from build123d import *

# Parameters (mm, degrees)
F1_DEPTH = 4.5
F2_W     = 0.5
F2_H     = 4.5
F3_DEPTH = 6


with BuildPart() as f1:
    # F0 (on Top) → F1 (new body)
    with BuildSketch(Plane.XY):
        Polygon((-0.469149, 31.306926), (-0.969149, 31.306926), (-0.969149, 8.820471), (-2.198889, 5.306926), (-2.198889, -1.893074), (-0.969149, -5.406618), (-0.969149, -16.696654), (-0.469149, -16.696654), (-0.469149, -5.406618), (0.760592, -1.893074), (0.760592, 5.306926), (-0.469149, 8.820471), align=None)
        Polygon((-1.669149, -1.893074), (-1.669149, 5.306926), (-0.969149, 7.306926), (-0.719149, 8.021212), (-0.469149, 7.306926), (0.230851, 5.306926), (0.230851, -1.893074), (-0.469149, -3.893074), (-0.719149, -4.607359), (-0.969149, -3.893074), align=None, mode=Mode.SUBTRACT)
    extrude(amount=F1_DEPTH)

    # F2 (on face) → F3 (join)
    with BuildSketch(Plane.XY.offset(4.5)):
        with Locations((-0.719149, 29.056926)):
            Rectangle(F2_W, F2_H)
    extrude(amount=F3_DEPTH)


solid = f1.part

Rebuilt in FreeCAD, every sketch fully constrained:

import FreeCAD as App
import Part
import Sketcher

V = App.Vector

doc = App.newDocument("Part")
params = doc.addObject("Spreadsheet::Sheet", "Params")
for row, (alias, value) in enumerate([
    ("sketch1_width", "0.5 mm"),
    ("sketch1_height", "7.2 mm"),
    ("pad1_length", "4.5 mm"),
    ("sketch2_width", "0.5 mm"),
    ("sketch2_height", "4.5 mm"),
    ("pad2_length", "6 mm"),
], start=1):
    params.set(f"A{row}", alias)
    params.set(f"B{row}", "=" + value)
    params.setAlias(f"B{row}", alias)

body = doc.addObject("PartDesign::Body", "Body")

# Sketch on XY plane
sketch1 = doc.addObject("Sketcher::SketchObject", "Sketch")
body.addObject(sketch1)
sketch1.AttachmentSupport = (doc.XY_Plane, [""])
sketch1.MapMode = "FlatFace"
sketch1.addGeometry([
    Part.LineSegment(V(-0.5, 31.3, 0), V(-1, 31.3, 0)),  # 0
    Part.LineSegment(V(-1, 31.3, 0), V(-1, 8.8, 0)),  # 1
    Part.LineSegment(V(-1, 8.8, 0), V(-2.2, 5.3, 0)),  # 2
    Part.LineSegment(V(-2.2, 5.3, 0), V(-2.2, -1.9, 0)),  # 3
    Part.LineSegment(V(-2.2, -1.9, 0), V(-1, -5.4, 0)),  # 4
    Part.LineSegment(V(-1, -5.4, 0), V(-1, -16.7, 0)),  # 5
    Part.LineSegment(V(-1, -16.7, 0), V(-0.5, -16.7, 0)),  # 6
    Part.LineSegment(V(-0.5, -16.7, 0), V(-0.5, -5.4, 0)),  # 7
    Part.LineSegment(V(-0.5, -5.4, 0), V(0.8, -1.9, 0)),  # 8
    Part.LineSegment(V(0.8, -1.9, 0), V(0.8, 5.3, 0)),  # 9
    Part.LineSegment(V(0.8, 5.3, 0), V(-0.5, 8.8, 0)),  # 10
    Part.LineSegment(V(-0.5, 8.8, 0), V(-0.5, 31.3, 0)),  # 11
    Part.LineSegment(V(-1, -3.9, 0), V(-1.7, -1.9, 0)),  # 12
    Part.LineSegment(V(-1.7, -1.9, 0), V(-1.7, 5.3, 0)),  # 13
    Part.LineSegment(V(-1.7, 5.3, 0), V(-1, 7.3, 0)),  # 14
    Part.LineSegment(V(-1, 7.3, 0), V(-0.7, 8, 0)),  # 15
    Part.LineSegment(V(-0.7, 8, 0), V(-0.5, 7.3, 0)),  # 16
    Part.LineSegment(V(-0.5, 7.3, 0), V(0.2, 5.3, 0)),  # 17
    Part.LineSegment(V(0.2, 5.3, 0), V(0.2, -1.9, 0)),  # 18
    Part.LineSegment(V(0.2, -1.9, 0), V(-0.5, -3.9, 0)),  # 19
    Part.LineSegment(V(-0.5, -3.9, 0), V(-0.7, -4.6, 0)),  # 20
    Part.LineSegment(V(-0.7, -4.6, 0), V(-1, -3.9, 0)),  # 21
], False)
sketch1.addConstraint([
    Sketcher.Constraint("Coincident", 0, 2, 1, 1),
    Sketcher.Constraint("Coincident", 1, 2, 2, 1),
    Sketcher.Constraint("Coincident", 2, 2, 3, 1),
    Sketcher.Constraint("Coincident", 3, 2, 4, 1),
    Sketcher.Constraint("Coincident", 4, 2, 5, 1),
    Sketcher.Constraint("Coincident", 5, 2, 6, 1),
    Sketcher.Constraint("Coincident", 6, 2, 7, 1),
    Sketcher.Constraint("Coincident", 7, 2, 8, 1),
    Sketcher.Constraint("Coincident", 8, 2, 9, 1),
    Sketcher.Constraint("Coincident", 9, 2, 10, 1),
    Sketcher.Constraint("Coincident", 10, 2, 11, 1),
    Sketcher.Constraint("Coincident", 11, 2, 0, 1),
    Sketcher.Constraint("Coincident", 12, 2, 13, 1),
    Sketcher.Constraint("Coincident", 13, 2, 14, 1),
    Sketcher.Constraint("Coincident", 14, 2, 15, 1),
    Sketcher.Constraint("Coincident", 15, 2, 16, 1),
    Sketcher.Constraint("Coincident", 16, 2, 17, 1),
    Sketcher.Constraint("Coincident", 17, 2, 18, 1),
    Sketcher.Constraint("Coincident", 18, 2, 19, 1),
    Sketcher.Constraint("Coincident", 19, 2, 20, 1),
    Sketcher.Constraint("Coincident", 20, 2, 21, 1),
    Sketcher.Constraint("Coincident", 21, 2, 12, 1),
    Sketcher.Constraint("Horizontal", 0),
    Sketcher.Constraint("Vertical", 1),
    Sketcher.Constraint("Vertical", 3),
    Sketcher.Constraint("Vertical", 5),
    Sketcher.Constraint("Horizontal", 6),
    Sketcher.Constraint("Vertical", 7),
    Sketcher.Constraint("Vertical", 9),
    Sketcher.Constraint("Vertical", 11),
    Sketcher.Constraint("Vertical", 13),
    Sketcher.Constraint("Vertical", 18),
    Sketcher.Constraint("Parallel", 2, 8),
    Sketcher.Constraint("Parallel", 4, 10),
    Sketcher.Constraint("Parallel", 10, 12),
    Sketcher.Constraint("Parallel", 8, 14),
    Sketcher.Constraint("Parallel", 14, 15),
    Sketcher.Constraint("Parallel", 12, 16),
    Sketcher.Constraint("Parallel", 16, 17),
    Sketcher.Constraint("Parallel", 15, 19),
    Sketcher.Constraint("Parallel", 19, 20),
    Sketcher.Constraint("Parallel", 17, 21),
    Sketcher.Constraint("Horizontal", 4, 2, 7, 2),
    Sketcher.Constraint("Horizontal", 3, 2, 8, 2),
    Sketcher.Constraint("Horizontal", 2, 2, 9, 2),
    Sketcher.Constraint("Horizontal", 1, 2, 10, 2),
    Sketcher.Constraint("Horizontal", 8, 2, 12, 2),
    Sketcher.Constraint("Horizontal", 9, 2, 13, 2),
    Sketcher.Constraint("Horizontal", 14, 2, 16, 2),
    Sketcher.Constraint("Horizontal", 13, 2, 17, 2),
    Sketcher.Constraint("Horizontal", 12, 2, 18, 2),
    Sketcher.Constraint("Horizontal", 19, 2, 21, 2),
    Sketcher.Constraint("Vertical", 1, 2, 4, 2),
    Sketcher.Constraint("Vertical", 7, 2, 10, 2),
    Sketcher.Constraint("Vertical", 5, 2, 14, 2),
    Sketcher.Constraint("Vertical", 11, 2, 16, 2),
    Sketcher.Constraint("Vertical", 16, 2, 19, 2),
    Sketcher.Constraint("DistanceX", 0, 2, 0, 1, 0.5),
    Sketcher.Constraint("DistanceY", 3, 2, 3, 1, 7.2),
    Sketcher.Constraint("DistanceY", 2, 2, 0, 2, 26.0),
    Sketcher.Constraint("DistanceY", 13, 2, 14, 2, 2.0),
    Sketcher.Constraint("DistanceX", 12, 2, 4, 2, 0.7),
    Sketcher.Constraint("DistanceY", 1, 2, 1, 1, 22.486455),
    Sketcher.Constraint("DistanceY", 5, 2, 5, 1, 11.290036),
    Sketcher.Constraint("DistanceX", 0, 2, -1, 1, 0.969149),
    Sketcher.Constraint("DistanceY", -1, 1, 1, 2, 8.820471),
])
sketch1.setExpression("Constraints[57]", "Params.sketch1_width")
sketch1.setExpression("Constraints[58]", "Params.sketch1_height")
pad1 = doc.addObject("PartDesign::Pad", "Pad")
body.addObject(pad1)
pad1.Profile = sketch1
pad1.setExpression("Length", "Params.pad1_length")

# Sketch on XY plane
sketch2 = doc.addObject("Sketcher::SketchObject", "Sketch001")
body.addObject(sketch2)
sketch2.AttachmentSupport = (doc.XY_Plane, [""])
sketch2.MapMode = "FlatFace"
sketch2.AttachmentOffset = App.Placement(V(0, 0, 4.5), App.Rotation())
sketch2.addGeometry([
    Part.LineSegment(V(-1, 31.3, 0), V(-1, 26.8, 0)),
    Part.LineSegment(V(-1, 26.8, 0), V(-0.5, 26.8, 0)),
    Part.LineSegment(V(-0.5, 26.8, 0), V(-0.5, 31.3, 0)),
    Part.LineSegment(V(-0.5, 31.3, 0), V(-1, 31.3, 0)),
], False)
sketch2.addConstraint([
    Sketcher.Constraint("Coincident", 0, 2, 1, 1),
    Sketcher.Constraint("Coincident", 1, 2, 2, 1),
    Sketcher.Constraint("Coincident", 2, 2, 3, 1),
    Sketcher.Constraint("Coincident", 3, 2, 0, 1),
    Sketcher.Constraint("Vertical", 0),
    Sketcher.Constraint("Horizontal", 1),
    Sketcher.Constraint("Vertical", 2),
    Sketcher.Constraint("Horizontal", 3),
    Sketcher.Constraint("DistanceX", 1, 1, 1, 2, 0.5),
    Sketcher.Constraint("DistanceY", 0, 2, 0, 1, 4.5),
    Sketcher.Constraint("DistanceX", 0, 2, -1, 1, 0.969149),
    Sketcher.Constraint("DistanceY", -1, 1, 0, 2, 26.806926),
])
sketch2.setExpression("Constraints[8]", "Params.sketch2_width")
sketch2.setExpression("Constraints[9]", "Params.sketch2_height")
pad2 = doc.addObject("PartDesign::Pad", "Pad001")
body.addObject(pad2)
pad2.Profile = sketch2
pad2.setExpression("Length", "Params.pad2_length")

doc.recompute()
